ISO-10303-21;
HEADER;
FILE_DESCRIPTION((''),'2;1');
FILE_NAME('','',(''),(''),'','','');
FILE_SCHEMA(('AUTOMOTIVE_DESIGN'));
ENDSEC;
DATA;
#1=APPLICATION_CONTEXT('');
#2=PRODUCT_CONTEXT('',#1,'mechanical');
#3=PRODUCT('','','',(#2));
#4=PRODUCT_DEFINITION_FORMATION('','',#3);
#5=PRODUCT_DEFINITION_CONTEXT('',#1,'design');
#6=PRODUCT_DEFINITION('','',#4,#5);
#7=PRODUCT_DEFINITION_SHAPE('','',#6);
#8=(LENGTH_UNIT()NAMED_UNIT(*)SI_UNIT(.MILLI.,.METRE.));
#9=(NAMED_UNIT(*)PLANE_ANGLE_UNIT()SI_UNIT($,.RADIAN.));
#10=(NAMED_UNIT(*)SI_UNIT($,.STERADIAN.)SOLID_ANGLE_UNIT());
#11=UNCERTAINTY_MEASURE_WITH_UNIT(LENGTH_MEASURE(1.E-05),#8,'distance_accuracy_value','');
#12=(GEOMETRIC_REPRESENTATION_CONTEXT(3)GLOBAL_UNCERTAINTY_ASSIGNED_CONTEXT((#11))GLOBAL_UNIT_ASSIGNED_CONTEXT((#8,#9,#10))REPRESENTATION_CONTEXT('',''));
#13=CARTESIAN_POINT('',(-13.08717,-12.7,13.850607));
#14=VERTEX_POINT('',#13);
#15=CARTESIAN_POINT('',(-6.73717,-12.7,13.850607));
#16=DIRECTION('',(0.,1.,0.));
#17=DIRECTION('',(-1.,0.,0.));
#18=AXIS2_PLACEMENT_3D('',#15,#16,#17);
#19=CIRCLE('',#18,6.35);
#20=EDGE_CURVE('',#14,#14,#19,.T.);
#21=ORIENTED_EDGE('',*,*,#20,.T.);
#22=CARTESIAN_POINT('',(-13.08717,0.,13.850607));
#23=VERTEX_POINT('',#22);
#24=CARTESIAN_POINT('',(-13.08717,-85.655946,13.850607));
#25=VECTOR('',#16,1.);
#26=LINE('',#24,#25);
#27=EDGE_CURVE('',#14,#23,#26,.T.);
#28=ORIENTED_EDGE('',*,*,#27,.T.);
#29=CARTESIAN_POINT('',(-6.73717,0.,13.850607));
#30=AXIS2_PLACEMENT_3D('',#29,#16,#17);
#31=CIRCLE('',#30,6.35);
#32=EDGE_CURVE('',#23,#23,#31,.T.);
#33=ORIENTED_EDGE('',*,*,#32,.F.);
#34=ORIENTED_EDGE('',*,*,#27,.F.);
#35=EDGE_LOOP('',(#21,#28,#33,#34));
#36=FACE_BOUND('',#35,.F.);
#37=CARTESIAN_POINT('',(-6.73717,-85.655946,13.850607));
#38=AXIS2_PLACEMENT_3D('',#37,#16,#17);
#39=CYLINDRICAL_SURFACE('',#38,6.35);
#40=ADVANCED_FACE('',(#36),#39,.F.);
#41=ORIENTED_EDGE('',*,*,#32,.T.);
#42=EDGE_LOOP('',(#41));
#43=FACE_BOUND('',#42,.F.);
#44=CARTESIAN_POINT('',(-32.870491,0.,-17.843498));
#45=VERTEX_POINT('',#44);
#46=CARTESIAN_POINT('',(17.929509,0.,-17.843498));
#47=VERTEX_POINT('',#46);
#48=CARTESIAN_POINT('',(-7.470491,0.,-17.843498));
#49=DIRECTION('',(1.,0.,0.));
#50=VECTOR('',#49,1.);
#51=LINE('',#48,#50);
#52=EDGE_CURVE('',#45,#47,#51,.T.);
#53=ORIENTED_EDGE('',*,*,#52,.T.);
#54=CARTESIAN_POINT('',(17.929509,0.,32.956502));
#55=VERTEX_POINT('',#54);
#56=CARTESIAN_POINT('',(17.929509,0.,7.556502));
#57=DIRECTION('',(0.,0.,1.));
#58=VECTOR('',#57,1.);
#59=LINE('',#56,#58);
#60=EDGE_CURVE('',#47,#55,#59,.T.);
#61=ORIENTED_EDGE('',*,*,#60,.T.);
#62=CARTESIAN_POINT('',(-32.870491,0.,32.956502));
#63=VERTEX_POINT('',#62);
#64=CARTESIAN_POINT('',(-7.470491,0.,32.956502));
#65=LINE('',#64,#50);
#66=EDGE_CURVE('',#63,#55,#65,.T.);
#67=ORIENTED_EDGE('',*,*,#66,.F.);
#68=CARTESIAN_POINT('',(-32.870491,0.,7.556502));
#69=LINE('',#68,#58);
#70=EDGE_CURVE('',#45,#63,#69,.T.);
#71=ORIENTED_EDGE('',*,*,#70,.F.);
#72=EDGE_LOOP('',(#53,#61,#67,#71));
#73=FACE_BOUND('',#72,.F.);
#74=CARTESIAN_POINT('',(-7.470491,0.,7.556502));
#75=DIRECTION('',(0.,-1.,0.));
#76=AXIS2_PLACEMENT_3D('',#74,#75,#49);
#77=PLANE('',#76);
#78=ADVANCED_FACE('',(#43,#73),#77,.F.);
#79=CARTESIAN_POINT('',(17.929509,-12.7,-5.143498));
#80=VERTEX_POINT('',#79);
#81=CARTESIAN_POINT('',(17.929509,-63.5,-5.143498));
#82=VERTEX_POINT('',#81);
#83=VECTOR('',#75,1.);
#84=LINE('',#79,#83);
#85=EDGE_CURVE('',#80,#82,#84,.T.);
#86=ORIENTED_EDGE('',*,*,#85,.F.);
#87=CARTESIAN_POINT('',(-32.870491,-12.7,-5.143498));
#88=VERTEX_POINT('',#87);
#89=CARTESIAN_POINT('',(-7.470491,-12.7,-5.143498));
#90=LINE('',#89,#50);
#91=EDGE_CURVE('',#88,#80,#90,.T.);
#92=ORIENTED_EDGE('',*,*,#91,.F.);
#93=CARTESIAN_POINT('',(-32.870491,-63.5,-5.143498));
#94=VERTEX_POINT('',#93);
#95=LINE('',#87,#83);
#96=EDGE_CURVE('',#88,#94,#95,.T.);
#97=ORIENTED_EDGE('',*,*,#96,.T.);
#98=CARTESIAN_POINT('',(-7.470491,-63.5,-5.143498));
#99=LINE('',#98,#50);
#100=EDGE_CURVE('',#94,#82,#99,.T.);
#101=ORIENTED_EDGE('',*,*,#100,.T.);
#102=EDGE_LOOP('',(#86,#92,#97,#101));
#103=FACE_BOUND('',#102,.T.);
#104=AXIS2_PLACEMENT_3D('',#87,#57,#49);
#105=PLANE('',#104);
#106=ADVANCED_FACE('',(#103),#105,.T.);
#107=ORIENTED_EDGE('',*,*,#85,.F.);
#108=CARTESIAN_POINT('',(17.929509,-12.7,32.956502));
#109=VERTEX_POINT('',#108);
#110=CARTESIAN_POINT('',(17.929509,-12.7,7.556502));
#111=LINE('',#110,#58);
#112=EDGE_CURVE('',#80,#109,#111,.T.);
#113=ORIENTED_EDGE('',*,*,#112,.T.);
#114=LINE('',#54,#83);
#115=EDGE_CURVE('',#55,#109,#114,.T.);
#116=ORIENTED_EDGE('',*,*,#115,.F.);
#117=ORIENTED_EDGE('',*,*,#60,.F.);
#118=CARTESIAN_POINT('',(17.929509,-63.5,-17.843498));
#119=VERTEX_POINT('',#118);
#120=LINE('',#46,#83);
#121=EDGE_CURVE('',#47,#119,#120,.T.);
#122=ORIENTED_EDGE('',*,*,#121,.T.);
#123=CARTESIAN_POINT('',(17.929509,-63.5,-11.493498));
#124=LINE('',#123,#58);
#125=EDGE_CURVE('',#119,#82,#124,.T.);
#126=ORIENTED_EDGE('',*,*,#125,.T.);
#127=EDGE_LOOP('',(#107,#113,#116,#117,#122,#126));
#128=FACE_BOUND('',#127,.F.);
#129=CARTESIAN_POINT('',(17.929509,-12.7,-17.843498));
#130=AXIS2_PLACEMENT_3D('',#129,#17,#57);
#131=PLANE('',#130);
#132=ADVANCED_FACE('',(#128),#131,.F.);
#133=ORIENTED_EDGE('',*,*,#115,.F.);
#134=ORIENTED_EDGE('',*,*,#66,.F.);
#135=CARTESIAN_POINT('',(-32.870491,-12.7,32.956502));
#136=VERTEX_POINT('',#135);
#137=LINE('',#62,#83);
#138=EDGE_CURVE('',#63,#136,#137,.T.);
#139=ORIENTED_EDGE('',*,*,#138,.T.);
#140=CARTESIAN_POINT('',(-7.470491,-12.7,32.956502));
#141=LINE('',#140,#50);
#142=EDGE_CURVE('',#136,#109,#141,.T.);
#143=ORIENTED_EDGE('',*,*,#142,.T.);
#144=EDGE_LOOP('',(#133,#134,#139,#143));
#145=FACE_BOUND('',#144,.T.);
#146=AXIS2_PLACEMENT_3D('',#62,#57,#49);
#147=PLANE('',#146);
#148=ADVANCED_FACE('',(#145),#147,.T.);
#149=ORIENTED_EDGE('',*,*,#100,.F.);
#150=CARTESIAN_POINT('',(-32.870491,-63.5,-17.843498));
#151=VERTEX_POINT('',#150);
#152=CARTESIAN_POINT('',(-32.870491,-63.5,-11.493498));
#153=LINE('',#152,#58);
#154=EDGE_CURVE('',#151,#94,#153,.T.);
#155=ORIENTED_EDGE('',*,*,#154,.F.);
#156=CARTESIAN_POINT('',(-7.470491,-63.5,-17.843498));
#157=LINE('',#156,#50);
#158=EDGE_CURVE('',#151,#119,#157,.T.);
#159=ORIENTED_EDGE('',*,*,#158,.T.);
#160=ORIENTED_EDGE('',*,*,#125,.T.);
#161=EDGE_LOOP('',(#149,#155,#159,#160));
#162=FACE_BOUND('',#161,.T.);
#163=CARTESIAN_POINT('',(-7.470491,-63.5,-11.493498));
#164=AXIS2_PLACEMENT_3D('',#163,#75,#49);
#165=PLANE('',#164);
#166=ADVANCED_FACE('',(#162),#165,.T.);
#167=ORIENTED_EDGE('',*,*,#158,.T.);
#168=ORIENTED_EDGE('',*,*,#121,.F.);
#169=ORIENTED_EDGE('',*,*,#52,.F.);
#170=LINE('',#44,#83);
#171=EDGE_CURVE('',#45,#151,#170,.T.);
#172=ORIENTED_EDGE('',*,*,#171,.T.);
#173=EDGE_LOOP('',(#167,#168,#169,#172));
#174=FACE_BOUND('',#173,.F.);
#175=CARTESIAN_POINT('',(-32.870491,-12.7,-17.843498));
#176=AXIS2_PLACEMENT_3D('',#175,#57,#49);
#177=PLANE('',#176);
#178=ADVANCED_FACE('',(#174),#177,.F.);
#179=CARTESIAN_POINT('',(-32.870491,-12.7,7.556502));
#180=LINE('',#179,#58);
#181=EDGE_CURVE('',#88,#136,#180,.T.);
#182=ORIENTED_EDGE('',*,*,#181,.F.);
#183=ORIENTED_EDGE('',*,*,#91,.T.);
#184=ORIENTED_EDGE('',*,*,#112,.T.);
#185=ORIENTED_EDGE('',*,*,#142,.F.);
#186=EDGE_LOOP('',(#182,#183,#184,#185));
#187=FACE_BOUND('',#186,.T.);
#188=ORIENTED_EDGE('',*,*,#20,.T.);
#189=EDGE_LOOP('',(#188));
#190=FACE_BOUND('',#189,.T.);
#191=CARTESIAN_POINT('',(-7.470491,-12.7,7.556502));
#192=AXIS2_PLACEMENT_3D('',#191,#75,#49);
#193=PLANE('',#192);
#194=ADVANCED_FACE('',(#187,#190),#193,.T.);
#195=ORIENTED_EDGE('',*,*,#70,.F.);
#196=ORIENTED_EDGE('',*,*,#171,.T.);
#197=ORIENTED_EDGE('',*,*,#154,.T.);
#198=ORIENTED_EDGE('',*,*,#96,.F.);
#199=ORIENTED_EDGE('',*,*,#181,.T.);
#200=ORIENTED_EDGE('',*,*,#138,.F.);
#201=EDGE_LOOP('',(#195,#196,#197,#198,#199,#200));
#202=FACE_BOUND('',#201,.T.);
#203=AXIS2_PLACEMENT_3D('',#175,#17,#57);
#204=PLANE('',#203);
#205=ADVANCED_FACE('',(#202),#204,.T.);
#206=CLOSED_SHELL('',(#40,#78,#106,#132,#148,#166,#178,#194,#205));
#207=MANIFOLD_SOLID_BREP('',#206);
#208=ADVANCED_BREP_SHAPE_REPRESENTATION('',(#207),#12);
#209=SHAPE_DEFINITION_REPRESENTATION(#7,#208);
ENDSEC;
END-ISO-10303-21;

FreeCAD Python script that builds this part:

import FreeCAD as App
import Part
import Sketcher

V = App.Vector
Q = App.Units.Quantity

doc = App.newDocument("Part")
body = doc.addObject("PartDesign::Body", "Body")

# Sketch on XZ plane
sketch1 = body.newObject("Sketcher::SketchObject", "Sketch")
sketch1.AttachmentSupport = (doc.getObject("XZ_Plane"), [""])
sketch1.MapMode = "FlatFace"
sketch1.addGeometry(Part.LineSegment(V(-33, 33, 0), V(-33, -18, 0)), False)
sketch1.addGeometry(Part.LineSegment(V(-33, -18, 0), V(18, -18, 0)), False)
sketch1.addGeometry(Part.LineSegment(V(18, -18, 0), V(18, 33, 0)), False)
sketch1.addGeometry(Part.LineSegment(V(18, 33, 0), V(-33, 33, 0)), False)
sketch1.addConstraint(Sketcher.Constraint("Coincident", 0, 2, 1, 1))
sketch1.addConstraint(Sketcher.Constraint("Coincident", 1, 2, 2, 1))
sketch1.addConstraint(Sketcher.Constraint("Coincident", 2, 2, 3, 1))
sketch1.addConstraint(Sketcher.Constraint("Coincident", 3, 2, 0, 1))
sketch1.addConstraint(Sketcher.Constraint("Vertical", 0))
sketch1.addConstraint(Sketcher.Constraint("Horizontal", 1))
sketch1.addConstraint(Sketcher.Constraint("Vertical", 2))
sketch1.addConstraint(Sketcher.Constraint("Horizontal", 3))
sketch1.addConstraint(Sketcher.Constraint("Equal", 3, 0))
sketch1.addConstraint(Sketcher.Constraint("DistanceX", 1, 1, 1, 2, Q("2 in")))
sketch1.addConstraint(Sketcher.Constraint("DistanceY", 0, 2, -1, 1, Q("0.7024999 in")))
sketch1.addConstraint(Sketcher.Constraint("DistanceX", 0, 2, -1, 1, Q("32.870491 mm")))
pad1 = body.newObject("PartDesign::Pad", "Pad")
pad1.Profile = sketch1
pad1.Length = Q("0.5 in")

# Sketch on XZ plane
sketch2 = body.newObject("Sketcher::SketchObject", "Sketch001")
sketch2.AttachmentSupport = (doc.getObject("XZ_Plane"), [""])
sketch2.MapMode = "FlatFace"
sketch2.AttachmentOffset = App.Placement(V(0, 0, 0.5 * 25.4), App.Rotation())
sketch2.addGeometry(Part.Circle(V(-7, 14, 0), V(0, 0, 1), 6), False)
sketch2.addConstraint(Sketcher.Constraint("Diameter", 0, Q("0.5 in")))
sketch2.addConstraint(Sketcher.Constraint("DistanceX", 0, 3, -1, 1, Q("6.73717 mm")))
sketch2.addConstraint(Sketcher.Constraint("DistanceY", -1, 1, 0, 3, Q("13.850607 mm")))
doc.recompute()
hole = body.newObject("PartDesign::Hole", "Hole")
hole.Profile = sketch2
hole.ThreadType = "None"
hole.Diameter = Q("0.5 in")
hole.DepthType = "ThroughAll"

# Sketch on XZ plane
sketch3 = body.newObject("Sketcher::SketchObject", "Sketch002")
sketch3.AttachmentSupport = (doc.getObject("XZ_Plane"), [""])
sketch3.MapMode = "FlatFace"
sketch3.AttachmentOffset = App.Placement(V(0, 0, 0.5 * 25.4), App.Rotation())
sketch3.addGeometry(Part.LineSegment(V(-33, -5, 0), V(-33, -18, 0)), False)
sketch3.addGeometry(Part.LineSegment(V(-33, -18, 0), V(18, -18, 0)), False)
sketch3.addGeometry(Part.LineSegment(V(18, -18, 0), V(18, -5, 0)), False)
sketch3.addGeometry(Part.LineSegment(V(18, -5, 0), V(-33, -5, 0)), False)
sketch3.addConstraint(Sketcher.Constraint("Coincident", 0, 2, 1, 1))
sketch3.addConstraint(Sketcher.Constraint("Coincident", 1, 2, 2, 1))
sketch3.addConstraint(Sketcher.Constraint("Coincident", 2, 2, 3, 1))
sketch3.addConstraint(Sketcher.Constraint("Coincident", 3, 2, 0, 1))
sketch3.addConstraint(Sketcher.Constraint("Vertical", 0))
sketch3.addConstraint(Sketcher.Constraint("Horizontal", 1))
sketch3.addConstraint(Sketcher.Constraint("Vertical", 2))
sketch3.addConstraint(Sketcher.Constraint("Horizontal", 3))
sketch3.addConstraint(Sketcher.Constraint("DistanceX", 1, 1, 1, 2, Q("2 in")))
sketch3.addConstraint(Sketcher.Constraint("DistanceY", 0, 2, 0, 1, Q("0.5 in")))
sketch3.addConstraint(Sketcher.Constraint("DistanceY", 0, 2, -1, 1, Q("0.7024999 in")))
sketch3.addConstraint(Sketcher.Constraint("DistanceX", 0, 2, -1, 1, Q("32.870491 mm")))
pad2 = body.newObject("PartDesign::Pad", "Pad001")
pad2.Profile = sketch3
pad2.Length = Q("2 in")

doc.recompute()
